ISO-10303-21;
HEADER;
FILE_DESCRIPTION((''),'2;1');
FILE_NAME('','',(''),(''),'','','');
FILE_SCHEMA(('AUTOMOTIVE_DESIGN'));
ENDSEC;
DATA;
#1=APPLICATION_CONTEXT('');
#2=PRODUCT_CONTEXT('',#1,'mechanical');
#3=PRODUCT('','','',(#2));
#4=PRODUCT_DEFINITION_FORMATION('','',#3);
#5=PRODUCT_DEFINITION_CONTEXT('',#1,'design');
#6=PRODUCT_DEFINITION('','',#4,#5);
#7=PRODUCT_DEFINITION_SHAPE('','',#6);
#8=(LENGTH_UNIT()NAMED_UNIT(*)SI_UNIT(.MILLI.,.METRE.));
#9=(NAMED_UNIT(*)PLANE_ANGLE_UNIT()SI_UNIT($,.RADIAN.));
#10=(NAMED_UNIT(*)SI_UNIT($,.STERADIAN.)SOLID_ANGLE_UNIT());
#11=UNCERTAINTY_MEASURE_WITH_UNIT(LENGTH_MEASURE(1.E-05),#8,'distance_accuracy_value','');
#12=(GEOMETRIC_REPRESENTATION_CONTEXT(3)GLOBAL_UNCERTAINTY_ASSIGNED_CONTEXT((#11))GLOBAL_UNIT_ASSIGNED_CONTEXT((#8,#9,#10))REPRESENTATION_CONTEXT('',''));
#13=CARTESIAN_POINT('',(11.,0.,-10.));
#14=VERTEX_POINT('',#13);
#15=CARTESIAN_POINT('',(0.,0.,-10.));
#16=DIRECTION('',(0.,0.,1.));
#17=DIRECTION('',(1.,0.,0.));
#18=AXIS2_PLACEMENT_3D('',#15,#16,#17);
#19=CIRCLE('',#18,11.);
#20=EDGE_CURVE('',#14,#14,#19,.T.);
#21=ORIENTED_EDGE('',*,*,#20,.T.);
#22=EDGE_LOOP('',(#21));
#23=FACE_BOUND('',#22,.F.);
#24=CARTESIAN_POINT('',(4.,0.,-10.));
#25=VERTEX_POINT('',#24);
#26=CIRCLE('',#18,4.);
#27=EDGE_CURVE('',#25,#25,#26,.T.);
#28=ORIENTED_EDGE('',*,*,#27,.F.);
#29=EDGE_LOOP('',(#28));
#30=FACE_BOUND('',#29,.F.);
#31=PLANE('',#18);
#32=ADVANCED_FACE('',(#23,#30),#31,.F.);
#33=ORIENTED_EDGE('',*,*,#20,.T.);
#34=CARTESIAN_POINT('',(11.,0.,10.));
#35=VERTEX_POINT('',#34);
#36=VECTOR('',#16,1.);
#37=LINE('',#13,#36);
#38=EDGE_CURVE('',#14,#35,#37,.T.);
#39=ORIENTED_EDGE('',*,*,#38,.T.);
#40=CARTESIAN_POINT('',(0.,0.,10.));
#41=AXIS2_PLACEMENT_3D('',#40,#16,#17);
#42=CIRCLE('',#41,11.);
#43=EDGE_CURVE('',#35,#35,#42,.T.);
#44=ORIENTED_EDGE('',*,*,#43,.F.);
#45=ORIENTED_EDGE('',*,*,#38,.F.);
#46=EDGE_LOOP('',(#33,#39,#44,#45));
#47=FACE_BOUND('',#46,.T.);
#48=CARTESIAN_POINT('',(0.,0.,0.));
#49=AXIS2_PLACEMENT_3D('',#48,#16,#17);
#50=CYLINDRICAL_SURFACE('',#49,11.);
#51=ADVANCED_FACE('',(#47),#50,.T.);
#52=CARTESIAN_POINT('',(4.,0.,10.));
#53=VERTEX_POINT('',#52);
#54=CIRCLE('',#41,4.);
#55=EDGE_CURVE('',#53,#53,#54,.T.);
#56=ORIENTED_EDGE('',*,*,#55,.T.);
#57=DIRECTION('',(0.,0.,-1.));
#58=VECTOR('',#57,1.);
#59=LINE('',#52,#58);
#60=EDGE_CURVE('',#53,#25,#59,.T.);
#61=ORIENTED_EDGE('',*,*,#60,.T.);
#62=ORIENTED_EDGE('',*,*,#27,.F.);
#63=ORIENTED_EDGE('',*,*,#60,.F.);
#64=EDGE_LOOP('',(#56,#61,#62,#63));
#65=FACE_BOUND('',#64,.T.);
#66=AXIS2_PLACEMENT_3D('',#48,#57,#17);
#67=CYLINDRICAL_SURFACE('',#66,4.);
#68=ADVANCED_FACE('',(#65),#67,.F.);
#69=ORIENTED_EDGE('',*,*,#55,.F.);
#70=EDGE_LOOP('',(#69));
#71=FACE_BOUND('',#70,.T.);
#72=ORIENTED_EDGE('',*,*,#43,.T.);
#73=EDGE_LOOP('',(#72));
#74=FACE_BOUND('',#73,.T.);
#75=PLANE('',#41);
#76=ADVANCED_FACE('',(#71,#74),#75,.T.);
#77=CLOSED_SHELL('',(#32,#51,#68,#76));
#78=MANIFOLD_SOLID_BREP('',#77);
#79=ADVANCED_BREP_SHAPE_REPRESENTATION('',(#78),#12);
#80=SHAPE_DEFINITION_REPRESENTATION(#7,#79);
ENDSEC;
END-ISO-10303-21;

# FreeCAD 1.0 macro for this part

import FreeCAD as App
import Part
import Sketcher

V = App.Vector

doc = App.newDocument("Part")
body = doc.addObject("PartDesign::Body", "Body")

sketch1 = doc.addObject("Sketcher::SketchObject", "Sketch")
body.addObject(sketch1)
sketch1.AttachmentSupport = (doc.XY_Plane, [""])
sketch1.MapMode = "FlatFace"
sketch1.addGeometry([
    Part.Circle(V(0, 0, 0), V(0, 0, 1), 11),
    Part.Circle(V(0, 0, 0), V(0, 0, 1), 4),
], False)
sketch1.addConstraint([
    Sketcher.Constraint("Coincident", 0, 3, -1, 1),
    Sketcher.Constraint("Coincident", 1, 3, -1, 1),
    Sketcher.Constraint("Diameter", 0, 22.0),
    Sketcher.Constraint("Diameter", 1, 8.0),
])
pad1 = doc.addObject("PartDesign::Pad", "Pad")
body.addObject(pad1)
pad1.Profile = sketch1
pad1.Length = 20
pad1.Midplane = True

doc.recompute()
